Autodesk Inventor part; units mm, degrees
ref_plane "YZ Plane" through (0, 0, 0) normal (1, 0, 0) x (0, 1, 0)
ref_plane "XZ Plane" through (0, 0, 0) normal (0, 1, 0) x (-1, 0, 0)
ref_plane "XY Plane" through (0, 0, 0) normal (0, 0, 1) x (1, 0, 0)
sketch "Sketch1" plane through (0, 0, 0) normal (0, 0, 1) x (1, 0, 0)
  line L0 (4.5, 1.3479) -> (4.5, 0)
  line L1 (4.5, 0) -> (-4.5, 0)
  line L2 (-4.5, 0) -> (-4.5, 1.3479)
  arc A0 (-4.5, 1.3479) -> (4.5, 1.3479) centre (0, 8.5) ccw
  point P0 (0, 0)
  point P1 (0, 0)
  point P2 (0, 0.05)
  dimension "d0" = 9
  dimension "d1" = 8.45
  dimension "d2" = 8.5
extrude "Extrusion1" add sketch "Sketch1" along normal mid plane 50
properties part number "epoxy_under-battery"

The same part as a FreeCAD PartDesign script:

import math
import FreeCAD as App
import Part
import Sketcher
Q = App.Units.Quantity

doc = App.newDocument("Part")
body = doc.addObject("PartDesign::Body", "Body")

# Sketch on XY plane
sketch1 = doc.addObject("Sketcher::SketchObject", "Sketch")
body.addObject(sketch1)
sketch1.AttachmentSupport = (doc.XY_Plane, [""])
sketch1.MapMode = "FlatFace"
sketch1.addGeometry([
    Part.LineSegment(App.Vector(4.5, 0, 0), App.Vector(4.5, 1.3, 0)),
    Part.ArcOfCircle(Part.Circle(App.Vector(0, 8.5, 0), App.Vector(0, 0, 1), 8.5), math.radians(-122), math.radians(-58)),
    Part.LineSegment(App.Vector(-4.5, 1.3, 0), App.Vector(-4.5, 0, 0)),
    Part.LineSegment(App.Vector(-4.5, 0, 0), App.Vector(4.5, 0, 0)),
], False)
sketch1.addConstraint([
    Sketcher.Constraint("Coincident", 0, 2, 1, 2),
    Sketcher.Constraint("Coincident", 1, 1, 2, 1),
    Sketcher.Constraint("Coincident", 2, 2, 3, 1),
    Sketcher.Constraint("Coincident", 3, 2, 0, 1),
    Sketcher.Constraint("Vertical", 0),
    Sketcher.Constraint("Vertical", 2),
    Sketcher.Constraint("Horizontal", 3),
    Sketcher.Constraint("Symmetric", 2, 2, 3, 2, -1, 1),
    Sketcher.Constraint("PointOnObject", 1, 3, -2),
    Sketcher.Constraint("DistanceX", 3, 1, 3, 2, Q("9 mm")),
    Sketcher.Constraint("Radius", 1, Q("8.45 mm")),
    Sketcher.Constraint("DistanceY", -1, 1, 1, 3, Q("8.5 mm")),
])
pad1 = doc.addObject("PartDesign::Pad", "Pad")
body.addObject(pad1)
pad1.Profile = sketch1
pad1.Length = 50
pad1.Midplane = True

doc.recompute()
